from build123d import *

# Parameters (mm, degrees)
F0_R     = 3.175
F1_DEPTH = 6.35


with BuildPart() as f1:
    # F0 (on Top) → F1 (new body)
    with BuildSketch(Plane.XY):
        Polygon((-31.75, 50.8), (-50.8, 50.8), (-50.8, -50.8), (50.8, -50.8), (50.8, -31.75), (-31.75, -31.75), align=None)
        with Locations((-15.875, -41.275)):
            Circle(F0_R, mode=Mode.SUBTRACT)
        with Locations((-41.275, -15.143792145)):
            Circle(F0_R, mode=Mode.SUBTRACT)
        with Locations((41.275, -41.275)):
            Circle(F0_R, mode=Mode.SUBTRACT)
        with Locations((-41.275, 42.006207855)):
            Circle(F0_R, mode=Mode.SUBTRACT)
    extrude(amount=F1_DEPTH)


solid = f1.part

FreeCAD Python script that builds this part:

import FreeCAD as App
import Part
import Sketcher
Q = App.Units.Quantity

doc = App.newDocument("Part")
params = doc.addObject("Spreadsheet::Sheet", "Params")
for row, (alias, value) in enumerate([
    ("sketch1_diameter", "0.25 in"),
    ("sketch1_width", "4 in"),
    ("sketch1_width2", "0.75 in"),
    ("pad1_length", "0.25 in"),
], start=1):
    params.set(f"A{row}", alias)
    params.set(f"B{row}", "=" + value)
    params.setAlias(f"B{row}", alias)

body = doc.addObject("PartDesign::Body", "Body")

# Sketch on XY plane
sketch1 = body.newObject("Sketcher::SketchObject", "Sketch")
sketch1.AttachmentSupport = (doc.getObject("XY_Plane"), [""])
sketch1.MapMode = "FlatFace"
sketch1.addGeometry([
    Part.LineSegment(App.Vector(-31.8, 50.8, 0), App.Vector(-50.8, 50.8, 0)),  # 0
    Part.LineSegment(App.Vector(-50.8, 50.8, 0), App.Vector(-50.8, -50.8, 0)),  # 1
    Part.LineSegment(App.Vector(-50.8, -50.8, 0), App.Vector(50.8, -50.8, 0)),  # 2
    Part.LineSegment(App.Vector(50.8, -50.8, 0), App.Vector(50.8, -31.8, 0)),  # 3
    Part.LineSegment(App.Vector(50.8, -31.8, 0), App.Vector(-31.8, -31.8, 0)),  # 4
    Part.LineSegment(App.Vector(-31.8, -31.8, 0), App.Vector(-31.8, 50.8, 0)),  # 5
    Part.Circle(App.Vector(-15.9, -41.3, 0), App.Vector(0, 0, 1), 3.2),  # 6
    Part.Circle(App.Vector(-41.3, -15.1, 0), App.Vector(0, 0, 1), 3.2),  # 7
    Part.Circle(App.Vector(41.3, -41.3, 0), App.Vector(0, 0, 1), 3.2),  # 8
    Part.Circle(App.Vector(-41.3, 42, 0), App.Vector(0, 0, 1), 3.2),  # 9
], False)
sketch1.addConstraint([
    Sketcher.Constraint("Coincident", 0, 2, 1, 1),
    Sketcher.Constraint("Coincident", 1, 2, 2, 1),
    Sketcher.Constraint("Coincident", 2, 2, 3, 1),
    Sketcher.Constraint("Coincident", 3, 2, 4, 1),
    Sketcher.Constraint("Coincident", 4, 2, 5, 1),
    Sketcher.Constraint("Coincident", 5, 2, 0, 1),
    Sketcher.Constraint("Horizontal", 0),
    Sketcher.Constraint("Vertical", 1),
    Sketcher.Constraint("Horizontal", 2),
    Sketcher.Constraint("Vertical", 3),
    Sketcher.Constraint("Horizontal", 4),
    Sketcher.Constraint("Vertical", 5),
    Sketcher.Constraint("Equal", 6, 7),
    Sketcher.Constraint("Equal", 7, 8),
    Sketcher.Constraint("Equal", 8, 9),
    Sketcher.Constraint("Symmetric", 0, 2, 2, 2, -1, 1),
    Sketcher.Constraint("Horizontal", 6, 3, 8, 3),
    Sketcher.Constraint("Vertical", 7, 3, 9, 3),
    Sketcher.Constraint("Equal", 2, 1),
    Sketcher.Constraint("Equal", 0, 3),
    Sketcher.Constraint("Diameter", 6, Q("0.25 in")),
    Sketcher.Constraint("DistanceX", 2, 1, 2, 2, Q("4 in")),
    Sketcher.Constraint("DistanceX", 7, 3, 6, 3, Q("1 in")),
    Sketcher.Constraint("DistanceX", 0, 2, 0, 1, Q("0.75 in")),
    Sketcher.Constraint("DistanceX", 6, 3, 8, 3, Q("2.25 in")),
    Sketcher.Constraint("DistanceY", 7, 3, 9, 3, Q("2.25 in")),
    Sketcher.Constraint("DistanceX", 6, 3, -1, 1, Q("0.625 in")),
    Sketcher.Constraint("DistanceY", 6, 3, -1, 1, Q("1.625 in")),
    Sketcher.Constraint("DistanceY", 7, 3, -1, 1, Q("15.143792 mm")),
])
sketch1.setExpression("Constraints[20]", "Params.sketch1_diameter")
sketch1.setExpression("Constraints[21]", "Params.sketch1_width")
sketch1.setExpression("Constraints[23]", "Params.sketch1_width2")
pad1 = body.newObject("PartDesign::Pad", "Pad")
pad1.Profile = sketch1
pad1.setExpression("Length", "Params.pad1_length")

doc.recompute()
